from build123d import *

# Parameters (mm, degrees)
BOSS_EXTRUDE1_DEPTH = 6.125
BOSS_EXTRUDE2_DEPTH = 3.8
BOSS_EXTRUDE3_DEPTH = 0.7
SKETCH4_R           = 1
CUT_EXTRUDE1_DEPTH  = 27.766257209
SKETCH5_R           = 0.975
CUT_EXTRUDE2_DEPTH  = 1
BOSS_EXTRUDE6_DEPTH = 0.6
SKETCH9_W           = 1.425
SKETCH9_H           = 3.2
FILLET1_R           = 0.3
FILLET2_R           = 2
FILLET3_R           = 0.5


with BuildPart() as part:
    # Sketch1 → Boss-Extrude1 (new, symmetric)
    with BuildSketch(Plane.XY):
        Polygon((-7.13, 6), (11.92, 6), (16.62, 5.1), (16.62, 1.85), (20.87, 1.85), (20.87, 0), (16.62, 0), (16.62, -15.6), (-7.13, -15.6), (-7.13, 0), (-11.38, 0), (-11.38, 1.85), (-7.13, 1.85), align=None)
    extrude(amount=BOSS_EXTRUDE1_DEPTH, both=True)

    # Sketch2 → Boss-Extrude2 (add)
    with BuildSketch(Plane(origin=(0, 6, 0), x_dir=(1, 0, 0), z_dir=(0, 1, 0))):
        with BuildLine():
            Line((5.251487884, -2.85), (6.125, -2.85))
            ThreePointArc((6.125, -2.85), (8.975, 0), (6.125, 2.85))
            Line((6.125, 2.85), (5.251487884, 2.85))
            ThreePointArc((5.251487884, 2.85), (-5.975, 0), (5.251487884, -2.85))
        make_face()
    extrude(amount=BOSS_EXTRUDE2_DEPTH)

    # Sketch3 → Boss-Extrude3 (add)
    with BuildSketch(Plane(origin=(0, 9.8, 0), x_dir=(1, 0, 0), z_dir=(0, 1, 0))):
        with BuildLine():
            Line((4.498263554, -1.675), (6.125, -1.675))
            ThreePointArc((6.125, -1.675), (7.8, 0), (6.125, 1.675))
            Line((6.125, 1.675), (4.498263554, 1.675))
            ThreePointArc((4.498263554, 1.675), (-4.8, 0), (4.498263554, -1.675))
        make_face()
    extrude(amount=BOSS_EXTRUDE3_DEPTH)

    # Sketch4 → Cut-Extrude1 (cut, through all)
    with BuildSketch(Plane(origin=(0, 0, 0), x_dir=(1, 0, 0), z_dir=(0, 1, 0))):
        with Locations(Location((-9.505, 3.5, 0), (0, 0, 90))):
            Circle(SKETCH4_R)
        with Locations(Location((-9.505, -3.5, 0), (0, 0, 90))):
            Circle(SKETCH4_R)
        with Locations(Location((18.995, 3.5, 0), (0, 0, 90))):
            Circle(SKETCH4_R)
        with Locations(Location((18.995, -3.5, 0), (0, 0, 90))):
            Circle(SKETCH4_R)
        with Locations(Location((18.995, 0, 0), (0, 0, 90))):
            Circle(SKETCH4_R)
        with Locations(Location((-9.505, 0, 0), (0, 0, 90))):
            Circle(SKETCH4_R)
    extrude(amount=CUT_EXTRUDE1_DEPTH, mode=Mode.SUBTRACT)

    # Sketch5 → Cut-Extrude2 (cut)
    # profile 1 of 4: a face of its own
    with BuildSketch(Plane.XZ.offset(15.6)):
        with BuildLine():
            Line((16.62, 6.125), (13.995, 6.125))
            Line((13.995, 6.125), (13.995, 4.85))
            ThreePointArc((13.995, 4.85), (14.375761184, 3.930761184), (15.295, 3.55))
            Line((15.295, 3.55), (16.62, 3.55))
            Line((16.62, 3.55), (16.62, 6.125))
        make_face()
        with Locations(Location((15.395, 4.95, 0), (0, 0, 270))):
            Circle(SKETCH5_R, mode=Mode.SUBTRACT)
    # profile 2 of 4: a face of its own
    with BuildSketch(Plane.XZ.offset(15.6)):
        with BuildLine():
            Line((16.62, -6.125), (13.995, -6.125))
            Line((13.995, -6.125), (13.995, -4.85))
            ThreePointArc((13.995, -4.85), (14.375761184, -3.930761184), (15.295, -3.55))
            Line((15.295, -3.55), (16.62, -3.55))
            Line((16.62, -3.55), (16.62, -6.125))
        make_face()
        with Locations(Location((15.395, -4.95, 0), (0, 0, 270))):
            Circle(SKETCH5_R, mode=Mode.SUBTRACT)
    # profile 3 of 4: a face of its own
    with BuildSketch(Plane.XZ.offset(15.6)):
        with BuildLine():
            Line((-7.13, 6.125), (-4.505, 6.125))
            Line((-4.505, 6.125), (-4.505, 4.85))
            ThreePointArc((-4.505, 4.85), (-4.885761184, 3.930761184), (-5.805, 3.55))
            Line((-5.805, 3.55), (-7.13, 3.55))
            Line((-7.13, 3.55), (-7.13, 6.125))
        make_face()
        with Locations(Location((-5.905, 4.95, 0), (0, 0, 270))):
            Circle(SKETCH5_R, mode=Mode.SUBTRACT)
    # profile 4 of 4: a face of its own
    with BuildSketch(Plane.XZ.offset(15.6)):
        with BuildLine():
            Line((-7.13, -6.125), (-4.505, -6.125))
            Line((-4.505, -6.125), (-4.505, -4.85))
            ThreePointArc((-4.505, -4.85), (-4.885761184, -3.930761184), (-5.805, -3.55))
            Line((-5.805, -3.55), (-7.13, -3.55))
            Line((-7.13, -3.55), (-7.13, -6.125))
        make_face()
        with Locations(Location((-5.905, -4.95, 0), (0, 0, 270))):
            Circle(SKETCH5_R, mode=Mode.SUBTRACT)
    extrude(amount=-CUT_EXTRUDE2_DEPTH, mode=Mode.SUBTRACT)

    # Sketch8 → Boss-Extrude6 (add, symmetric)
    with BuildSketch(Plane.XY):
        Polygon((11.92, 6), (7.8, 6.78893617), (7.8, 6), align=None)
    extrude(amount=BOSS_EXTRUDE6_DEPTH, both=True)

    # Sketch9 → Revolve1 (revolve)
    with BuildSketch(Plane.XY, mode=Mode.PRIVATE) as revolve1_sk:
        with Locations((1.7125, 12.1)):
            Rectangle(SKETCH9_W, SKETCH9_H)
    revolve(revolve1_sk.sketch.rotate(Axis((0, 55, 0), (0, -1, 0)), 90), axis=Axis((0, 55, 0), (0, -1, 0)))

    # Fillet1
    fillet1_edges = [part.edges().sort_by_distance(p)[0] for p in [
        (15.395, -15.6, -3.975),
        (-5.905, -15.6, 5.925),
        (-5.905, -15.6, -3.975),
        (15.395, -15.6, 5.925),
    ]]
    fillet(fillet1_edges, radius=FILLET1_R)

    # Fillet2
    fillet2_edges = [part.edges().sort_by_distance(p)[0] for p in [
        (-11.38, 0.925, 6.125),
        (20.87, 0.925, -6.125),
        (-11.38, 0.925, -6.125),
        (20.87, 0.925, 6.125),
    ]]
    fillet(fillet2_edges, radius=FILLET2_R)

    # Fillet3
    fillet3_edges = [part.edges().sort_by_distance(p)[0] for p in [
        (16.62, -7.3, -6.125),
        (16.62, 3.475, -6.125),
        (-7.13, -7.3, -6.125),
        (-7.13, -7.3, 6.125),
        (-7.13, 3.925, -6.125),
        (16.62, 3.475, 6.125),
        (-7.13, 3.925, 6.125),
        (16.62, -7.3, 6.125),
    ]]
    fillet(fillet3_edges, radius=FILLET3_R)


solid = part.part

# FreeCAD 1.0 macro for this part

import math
import FreeCAD as App
import Part
import Sketcher

V = App.Vector


def edges_at(feature, points):
    """Names of the edges that pass closest to the given points."""
    edges = feature.Shape.Edges
    near = lambda p: min(range(len(edges)), key=lambda i: edges[i].distToShape(Part.Vertex(*p))[0])
    return sorted({f"Edge{near(p) + 1}" for p in points})

doc = App.newDocument("Part")
body = doc.addObject("PartDesign::Body", "Body")

sketch1 = body.newObject("Sketcher::SketchObject", "Sketch")
sketch1.AttachmentSupport = (doc.getObject("XY_Plane"), [""])
sketch1.MapMode = "FlatFace"
sketch1.addGeometry([
    Part.LineSegment(V(11.92, 6, 0), V(-7.13, 6, 0)),
    Part.LineSegment(V(-7.13, 6, 0), V(-7.13, 1.85, 0)),
    Part.LineSegment(V(-7.13, 1.85, 0), V(-11.38, 1.85, 0)),
    Part.LineSegment(V(-11.38, 1.85, 0), V(-11.38, 0, 0)),
    Part.LineSegment(V(-11.38, 0, 0), V(-7.13, 0, 0)),
    Part.LineSegment(V(-7.13, 0, 0), V(-7.13, -15.6, 0)),
    Part.LineSegment(V(-7.13, -15.6, 0), V(16.62, -15.6, 0)),
    Part.LineSegment(V(16.62, -15.6, 0), V(16.62, 0, 0)),
    Part.LineSegment(V(16.62, 0, 0), V(20.87, 0, 0)),
    Part.LineSegment(V(20.87, 0, 0), V(20.87, 1.85, 0)),
    Part.LineSegment(V(20.87, 1.85, 0), V(16.62, 1.85, 0)),
    Part.LineSegment(V(16.62, 1.85, 0), V(16.62, 5.1, 0)),
    Part.LineSegment(V(16.62, 5.1, 0), V(11.92, 6, 0)),
], False)
sketch1.addConstraint([
    Sketcher.Constraint("Coincident", 0, 2, 1, 1),
    Sketcher.Constraint("Coincident", 1, 2, 2, 1),
    Sketcher.Constraint("Coincident", 2, 2, 3, 1),
    Sketcher.Constraint("Coincident", 3, 2, 4, 1),
    Sketcher.Constraint("Coincident", 4, 2, 5, 1),
    Sketcher.Constraint("Coincident", 5, 2, 6, 1),
    Sketcher.Constraint("Coincident", 6, 2, 7, 1),
    Sketcher.Constraint("Coincident", 7, 2, 8, 1),
    Sketcher.Constraint("Coincident", 8, 2, 9, 1),
    Sketcher.Constraint("Coincident", 9, 2, 10, 1),
    Sketcher.Constraint("Coincident", 10, 2, 11, 1),
    Sketcher.Constraint("Coincident", 11, 2, 12, 1),
    Sketcher.Constraint("Coincident", 12, 2, 0, 1),
    Sketcher.Constraint("Horizontal", 0),
    Sketcher.Constraint("Vertical", 1),
    Sketcher.Constraint("Horizontal", 2),
    Sketcher.Constraint("Vertical", 3),
    Sketcher.Constraint("Horizontal", 4),
    Sketcher.Constraint("Vertical", 5),
    Sketcher.Constraint("Horizontal", 6),
    Sketcher.Constraint("Vertical", 7),
    Sketcher.Constraint("Horizontal", 8),
    Sketcher.Constraint("Vertical", 9),
    Sketcher.Constraint("Horizontal", 10),
    Sketcher.Constraint("Vertical", 11),
    Sketcher.Constraint("PointOnObject", 3, 2, -1),
    Sketcher.Constraint("PointOnObject", 7, 2, -1),
    Sketcher.Constraint("Horizontal", 2, 2, 9, 2),
    Sketcher.Constraint("Vertical", 1, 2, 4, 2),
    Sketcher.Constraint("Vertical", 7, 2, 10, 2),
    Sketcher.Constraint("Equal", 4, 8),
    Sketcher.Constraint("DistanceY", 5, 2, 5, 1, 15.6),
    Sketcher.Constraint("DistanceY", -1, 1, 0, 2, 6.0),
    Sketcher.Constraint("DistanceX", 3, 2, 6, 2, 28.0),
    Sketcher.Constraint("DistanceX", 0, 2, 0, 1, 19.05),
    Sketcher.Constraint("DistanceX", 2, 2, 2, 1, 4.25),
    Sketcher.Constraint("DistanceY", 1, 2, 1, 1, 4.15),
    Sketcher.Constraint("DistanceY", 11, 1, 11, 2, 3.25),
    Sketcher.Constraint("DistanceX", 0, 2, -1, 1, 7.13),
])
pad1 = body.newObject("PartDesign::Pad", "Pad")
pad1.Profile = sketch1
pad1.Length = 12.25
pad1.Midplane = True

sketch2 = body.newObject("Sketcher::SketchObject", "Sketch001")
sketch2.AttachmentSupport = (doc.getObject("XZ_Plane"), [""])
sketch2.MapMode = "FlatFace"
sketch2.AttachmentOffset = App.Placement(V(0, 0, -6), App.Rotation())
sketch2.addGeometry([
    Part.LineSegment(V(5.251488, 2.85, 0), V(6.125, 2.85, 0)),
    Part.ArcOfCircle(Part.Circle(V(6.125, 0, 0), V(0, 0, 1), 2.85), math.radians(-90), math.radians(90)),
    Part.LineSegment(V(6.125, -2.85, 0), V(5.251488, -2.85, 0)),
    Part.ArcOfCircle(Part.Circle(V(0, 0, 0), V(0, 0, 1), 5.975), math.radians(28.488832), math.radians(331.511168)),
], False)
sketch2.addConstraint([
    Sketcher.Constraint("Tangent", 0, 2, 1, 2),
    Sketcher.Constraint("Tangent", 1, 1, 2, 1),
    Sketcher.Constraint("Coincident", 2, 2, 3, 2),
    Sketcher.Constraint("Coincident", 3, 1, 0, 1),
    Sketcher.Constraint("Horizontal", 0),
    Sketcher.Constraint("Horizontal", 2),
    Sketcher.Constraint("Coincident", 3, 3, -1, 1),
    Sketcher.Constraint("PointOnObject", 1, 3, -1),
    Sketcher.Constraint("Radius", 1, 2.85),
    Sketcher.Constraint("Radius", 3, 5.975),
    Sketcher.Constraint("DistanceX", -1, 1, 1, 3, 6.125),
])
pad2 = body.newObject("PartDesign::Pad", "Pad001")
pad2.Profile = sketch2
pad2.Length = 3.8
pad2.Reversed = True

sketch3 = body.newObject("Sketcher::SketchObject", "Sketch002")
sketch3.AttachmentSupport = (doc.getObject("XZ_Plane"), [""])
sketch3.MapMode = "FlatFace"
sketch3.AttachmentOffset = App.Placement(V(0, 0, -9.8), App.Rotation())
sketch3.addGeometry([
    Part.LineSegment(V(4.498264, 1.675, 0), V(6.125, 1.675, 0)),
    Part.ArcOfCircle(Part.Circle(V(6.125, 0, 0), V(0, 0, 1), 1.675), math.radians(-90), math.radians(90)),
    Part.LineSegment(V(6.125, -1.675, 0), V(4.498264, -1.675, 0)),
    Part.ArcOfCircle(Part.Circle(V(0, 0, 0), V(0, 0, 1), 4.8), math.radians(20.423615), math.radians(339.576385)),
], False)
sketch3.addConstraint([
    Sketcher.Constraint("Tangent", 0, 2, 1, 2),
    Sketcher.Constraint("Tangent", 1, 1, 2, 1),
    Sketcher.Constraint("Coincident", 2, 2, 3, 2),
    Sketcher.Constraint("Coincident", 3, 1, 0, 1),
    Sketcher.Constraint("Horizontal", 0),
    Sketcher.Constraint("Horizontal", 2),
    Sketcher.Constraint("Coincident", 3, 3, -1, 1),
    Sketcher.Constraint("PointOnObject", 1, 3, -1),
    Sketcher.Constraint("Radius", 3, 4.8),
    Sketcher.Constraint("Radius", 1, 1.675),
    Sketcher.Constraint("DistanceX", -1, 1, 1, 3, 6.125),
])
pad3 = body.newObject("PartDesign::Pad", "Pad002")
pad3.Profile = sketch3
pad3.Length = 0.7
pad3.Reversed = True

sketch4 = body.newObject("Sketcher::SketchObject", "Sketch003")
sketch4.AttachmentSupport = (doc.getObject("XZ_Plane"), [""])
sketch4.MapMode = "FlatFace"
sketch4.addGeometry([
    Part.Circle(V(-9.505, -3.5, 0), V(0, 0, 1), 1),
    Part.Circle(V(-9.505, 3.5, 0), V(0, 0, 1), 1),
    Part.Circle(V(18.995, -3.5, 0), V(0, 0, 1), 1),
    Part.Circle(V(18.995, 3.5, 0), V(0, 0, 1), 1),
    Part.Circle(V(18.995, 0, 0), V(0, 0, 1), 1),
    Part.Circle(V(-9.505, 0, 0), V(0, 0, 1), 1),
], False)
sketch4.addConstraint([
    Sketcher.Constraint("Equal", 0, 1),
    Sketcher.Constraint("Equal", 1, 2),
    Sketcher.Constraint("Equal", 2, 3),
    Sketcher.Constraint("Equal", 3, 4),
    Sketcher.Constraint("Equal", 4, 5),
    Sketcher.Constraint("Symmetric", 0, 3, 1, 3, -1),
    Sketcher.Constraint("Symmetric", 2, 3, 3, 3, -1),
    Sketcher.Constraint("PointOnObject", 4, 3, -1),
    Sketcher.Constraint("PointOnObject", 5, 3, -1),
    Sketcher.Constraint("Horizontal", 0, 3, 2, 3),
    Sketcher.Constraint("Vertical", 3, 3, 4, 3),
    Sketcher.Constraint("Vertical", 1, 3, 5, 3),
    Sketcher.Constraint("Diameter", 0, 2.0),
    Sketcher.Constraint("DistanceY", 0, 3, 1, 3, 7.0),
    Sketcher.Constraint("DistanceX", 0, 3, 2, 3, 28.5),
    Sketcher.Constraint("DistanceX", 0, 3, -1, 1, 9.505),
])
pocket1 = body.newObject("PartDesign::Pocket", "Pocket")
pocket1.Profile = sketch4
pocket1.Type = "ThroughAll"

sketch5 = body.newObject("Sketcher::SketchObject", "Sketch004")
sketch5.AttachmentSupport = (doc.getObject("XZ_Plane"), [""])
sketch5.MapMode = "FlatFace"
sketch5.AttachmentOffset = App.Placement(V(0, 0, 15.6), App.Rotation())
sketch5.addGeometry([
    Part.LineSegment(V(16.62, 6.125, 0), V(13.995, 6.125, 0)),
    Part.LineSegment(V(13.995, 6.125, 0), V(13.995, 4.85, 0)),
    Part.ArcOfCircle(Part.Circle(V(15.295, 4.85, 0), V(0, 0, 1), 1.3), math.radians(180), math.radians(270)),
    Part.LineSegment(V(15.295, 3.55, 0), V(16.62, 3.55, 0)),
    Part.LineSegment(V(16.62, 3.55, 0), V(16.62, 6.125, 0)),
    Part.Circle(V(15.395, 4.95, 0), V(0, 0, 1), 0.975),
    Part.LineSegment(V(13.995, -6.125, 0), V(16.62, -6.125, 0)),
    Part.LineSegment(V(16.62, -6.125, 0), V(16.62, -3.55, 0)),
    Part.LineSegment(V(16.62, -3.55, 0), V(15.295, -3.55, 0)),
    Part.ArcOfCircle(Part.Circle(V(15.295, -4.85, 0), V(0, 0, 1), 1.3), math.radians(90), math.radians(180)),
    Part.LineSegment(V(13.995, -4.85, 0), V(13.995, -6.125, 0)),
    Part.Circle(V(15.395, -4.95, 0), V(0, 0, 1), 0.975),
    Part.LineSegment(V(-4.505, 6.125, 0), V(-7.13, 6.125, 0)),
    Part.LineSegment(V(-7.13, 6.125, 0), V(-7.13, 3.55, 0)),
    Part.LineSegment(V(-7.13, 3.55, 0), V(-5.805, 3.55, 0)),
    Part.ArcOfCircle(Part.Circle(V(-5.805, 4.85, 0), V(0, 0, 1), 1.3), math.radians(-90), math.radians(0)),
    Part.LineSegment(V(-4.505, 4.85, 0), V(-4.505, 6.125, 0)),
    Part.Circle(V(-5.905, 4.95, 0), V(0, 0, 1), 0.975),
    Part.LineSegment(V(-7.13, -6.125, 0), V(-4.505, -6.125, 0)),
    Part.LineSegment(V(-4.505, -6.125, 0), V(-4.505, -4.85, 0)),
    Part.ArcOfCircle(Part.Circle(V(-5.805, -4.85, 0), V(0, 0, 1), 1.3), math.radians(0), math.radians(90)),
    Part.LineSegment(V(-5.805, -3.55, 0), V(-7.13, -3.55, 0)),
    Part.LineSegment(V(-7.13, -3.55, 0), V(-7.13, -6.125, 0)),
    Part.Circle(V(-5.905, -4.95, 0), V(0, 0, 1), 0.975),
], False)
sketch5.addConstraint([
    Sketcher.Constraint("Coincident", 0, 2, 1, 1),
    Sketcher.Constraint("Tangent", 1, 2, 2, 1),
    Sketcher.Constraint("Tangent", 2, 2, 3, 1),
    Sketcher.Constraint("Coincident", 3, 2, 4, 1),
    Sketcher.Constraint("Coincident", 4, 2, 0, 1),
    Sketcher.Constraint("Coincident", 6, 2, 7, 1),
    Sketcher.Constraint("Coincident", 7, 2, 8, 1),
    Sketcher.Constraint("Tangent", 8, 2, 9, 1),
    Sketcher.Constraint("Tangent", 9, 2, 10, 1),
    Sketcher.Constraint("Coincident", 10, 2, 6, 1),
    Sketcher.Constraint("Coincident", 12, 2, 13, 1),
    Sketcher.Constraint("Coincident", 13, 2, 14, 1),
    Sketcher.Constraint("Tangent", 14, 2, 15, 1),
    Sketcher.Constraint("Tangent", 15, 2, 16, 1),
    Sketcher.Constraint("Coincident", 16, 2, 12, 1),
    Sketcher.Constraint("Coincident", 18, 2, 19, 1),
    Sketcher.Constraint("Tangent", 19, 2, 20, 1),
    Sketcher.Constraint("Tangent", 20, 2, 21, 1),
    Sketcher.Constraint("Coincident", 21, 2, 22, 1),
    Sketcher.Constraint("Coincident", 22, 2, 18, 1),
    Sketcher.Constraint("Horizontal", 0),
    Sketcher.Constraint("Vertical", 1),
    Sketcher.Constraint("Horizontal", 3),
    Sketcher.Constraint("Vertical", 4),
    Sketcher.Constraint("Horizontal", 6),
    Sketcher.Constraint("Vertical", 7),
    Sketcher.Constraint("Horizontal", 8),
    Sketcher.Constraint("Vertical", 10),
    Sketcher.Constraint("Horizontal", 12),
    Sketcher.Constraint("Vertical", 13),
    Sketcher.Constraint("Horizontal", 14),
    Sketcher.Constraint("Vertical", 16),
    Sketcher.Constraint("Horizontal", 18),
    Sketcher.Constraint("Vertical", 19),
    Sketcher.Constraint("Horizontal", 21),
    Sketcher.Constraint("Vertical", 22),
    Sketcher.Constraint("Equal", 2, 9),
    Sketcher.Constraint("Equal", 5, 11),
    Sketcher.Constraint("Equal", 9, 15),
    Sketcher.Constraint("Equal", 11, 17),
    Sketcher.Constraint("Equal", 15, 20),
    Sketcher.Constraint("Equal", 17, 23),
    Sketcher.Constraint("Symmetric", 2, 3, 9, 3, -1),
    Sketcher.Constraint("Symmetric", 5, 3, 11, 3, -1),
    Sketcher.Constraint("Symmetric", 15, 3, 20, 3, -1),
    Sketcher.Constraint("Symmetric", 17, 3, 23, 3, -1),
    Sketcher.Constraint("Symmetric", 4, 2, 6, 2, -1),
    Sketcher.Constraint("Symmetric", 12, 2, 22, 2, -1),
    Sketcher.Constraint("Horizontal", 2, 3, 15, 3),
    Sketcher.Constraint("Horizontal", 5, 3, 17, 3),
    Sketcher.Constraint("Horizontal", 4, 2, 12, 2),
    Sketcher.Constraint("Equal", 6, 12),
    Sketcher.Constraint("Radius", 2, 1.3),
    Sketcher.Constraint("Diameter", 5, 1.95),
    Sketcher.Constraint("DistanceX", 2, 3, 5, 3, 0.1),
    Sketcher.Constraint("DistanceY", 2, 3, 5, 3, 0.1),
    Sketcher.Constraint("DistanceY", 9, 3, 2, 3, 9.7),
    Sketcher.Constraint("DistanceX", 15, 3, 2, 3, 21.1),
    Sketcher.Constraint("DistanceX", 17, 3, 15, 3, 0.1),
    Sketcher.Constraint("DistanceX", 0, 2, 0, 1, 2.625),
    Sketcher.Constraint("DistanceY", 1, 2, 1, 1, 1.275),
    Sketcher.Constraint("DistanceX", -1, 1, 3, 2, 16.62),
])
pocket2 = body.newObject("PartDesign::Pocket", "Pocket001")
pocket2.Profile = sketch5
pocket2.Length = 1

sketch6 = body.newObject("Sketcher::SketchObject", "Sketch005")
sketch6.AttachmentSupport = (doc.getObject("XY_Plane"), [""])
sketch6.MapMode = "FlatFace"
sketch6.addGeometry([
    Part.LineSegment(V(11.92, 6, 0), V(7.8, 6.788936, 0)),
    Part.LineSegment(V(7.8, 6.788936, 0), V(7.8, 6, 0)),
    Part.LineSegment(V(7.8, 6, 0), V(11.92, 6, 0)),
], False)
sketch6.addConstraint([
    Sketcher.Constraint("Coincident", 0, 2, 1, 1),
    Sketcher.Constraint("Coincident", 1, 2, 2, 1),
    Sketcher.Constraint("Coincident", 2, 2, 0, 1),
    Sketcher.Constraint("Vertical", 1),
    Sketcher.Constraint("Horizontal", 2),
    Sketcher.Constraint("DistanceY", -1, 1, 1, 2, 6.0),
    Sketcher.Constraint("DistanceX", 2, 1, 2, 2, 4.12),
    Sketcher.Constraint("DistanceX", -1, 1, 0, 2, 7.8),
    Sketcher.Constraint("DistanceY", 1, 2, 1, 1, 0.788936),
])
pad4 = body.newObject("PartDesign::Pad", "Pad003")
pad4.Profile = sketch6
pad4.Length = 1.2
pad4.Midplane = True

sketch7 = body.newObject("Sketcher::SketchObject", "Sketch006")
sketch7.AttachmentSupport = (doc.getObject("XY_Plane"), [""])
sketch7.MapMode = "FlatFace"
sketch7.addGeometry([
    Part.LineSegment(V(1, 13.7, 0), V(1, 10.5, 0)),
    Part.LineSegment(V(1, 10.5, 0), V(2.425, 10.5, 0)),
    Part.LineSegment(V(2.425, 10.5, 0), V(2.425, 13.7, 0)),
    Part.LineSegment(V(2.425, 13.7, 0), V(1, 13.7, 0)),
], False)
sketch7.addConstraint([
    Sketcher.Constraint("Coincident", 0, 2, 1, 1),
    Sketcher.Constraint("Coincident", 1, 2, 2, 1),
    Sketcher.Constraint("Coincident", 2, 2, 3, 1),
    Sketcher.Constraint("Coincident", 3, 2, 0, 1),
    Sketcher.Constraint("Vertical", 0),
    Sketcher.Constraint("Horizontal", 1),
    Sketcher.Constraint("Vertical", 2),
    Sketcher.Constraint("Horizontal", 3),
    Sketcher.Constraint("DistanceY", 0, 2, 0, 1, 3.2),
    Sketcher.Constraint("DistanceX", -1, 1, 0, 2, 1.0),
    Sketcher.Constraint("DistanceY", -1, 1, 0, 2, 10.5),
    Sketcher.Constraint("DistanceX", 1, 1, 1, 2, 1.425),
])
revolution = body.newObject("PartDesign::Revolution", "Revolution")
revolution.Profile = sketch7
revolution.ReferenceAxis = (sketch7, ["V_Axis"])
revolution.Angle = 360
doc.recompute()

fillet = body.newObject("PartDesign::Fillet", "Fillet")
fillet.Base = (revolution, edges_at(revolution, [
    (15.395, -15.6, -3.975),
    (-5.905, -15.6, 5.925),
    (-5.905, -15.6, -3.975),
    (15.395, -15.6, 5.925),
]))
fillet.Radius = 0.3
doc.recompute()

fillet2 = body.newObject("PartDesign::Fillet", "Fillet001")
fillet2.Base = (fillet, edges_at(fillet, [
    (-11.38, 0.925, 6.125),
    (20.87, 0.925, -6.125),
    (-11.38, 0.925, -6.125),
    (20.87, 0.925, 6.125),
]))
fillet2.Radius = 2
doc.recompute()

fillet3 = body.newObject("PartDesign::Fillet", "Fillet002")
fillet3.Base = (fillet2, edges_at(fillet2, [
    (16.62, -7.3, -6.125),
    (16.62, 3.475, -6.125),
    (-7.13, -7.3, -6.125),
    (-7.13, -7.3, 6.125),
    (-7.13, 3.925, -6.125),
    (16.62, 3.475, 6.125),
    (-7.13, 3.925, 6.125),
    (16.62, -7.3, 6.125),
]))
fillet3.Radius = 0.5

doc.recompute()
